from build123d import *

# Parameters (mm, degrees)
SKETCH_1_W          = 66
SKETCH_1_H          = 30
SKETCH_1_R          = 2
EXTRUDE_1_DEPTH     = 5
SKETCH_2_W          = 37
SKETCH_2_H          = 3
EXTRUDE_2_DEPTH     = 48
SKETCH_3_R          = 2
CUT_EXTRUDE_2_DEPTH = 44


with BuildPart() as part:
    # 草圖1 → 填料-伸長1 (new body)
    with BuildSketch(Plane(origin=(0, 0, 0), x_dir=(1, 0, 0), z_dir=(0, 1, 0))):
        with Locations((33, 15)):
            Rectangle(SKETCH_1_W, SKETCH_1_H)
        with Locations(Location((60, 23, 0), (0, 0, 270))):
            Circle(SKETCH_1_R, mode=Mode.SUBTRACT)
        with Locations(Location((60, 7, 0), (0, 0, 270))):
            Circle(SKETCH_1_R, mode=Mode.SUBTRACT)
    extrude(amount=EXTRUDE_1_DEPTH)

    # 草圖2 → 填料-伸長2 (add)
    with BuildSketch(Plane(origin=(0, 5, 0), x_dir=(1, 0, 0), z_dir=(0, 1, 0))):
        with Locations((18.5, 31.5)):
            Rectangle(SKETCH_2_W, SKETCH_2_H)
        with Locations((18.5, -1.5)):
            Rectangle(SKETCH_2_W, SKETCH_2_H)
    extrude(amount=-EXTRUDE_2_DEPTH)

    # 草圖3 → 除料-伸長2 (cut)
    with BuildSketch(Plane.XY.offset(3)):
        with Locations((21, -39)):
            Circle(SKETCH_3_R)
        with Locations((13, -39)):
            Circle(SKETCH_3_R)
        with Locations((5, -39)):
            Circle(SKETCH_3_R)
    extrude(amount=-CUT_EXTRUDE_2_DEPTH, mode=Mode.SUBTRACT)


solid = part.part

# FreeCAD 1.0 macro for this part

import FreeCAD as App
import Part
import Sketcher
from FreeCAD import Vector
Q = App.Units.Quantity

doc = App.newDocument("Part")
body = doc.addObject("PartDesign::Body", "Body")

# Sketch on XZ plane
sketch1 = body.newObject("Sketcher::SketchObject", "Sketch")
sketch1.AttachmentSupport = (doc.getObject("XZ_Plane"), [""])
sketch1.MapMode = "FlatFace"
sketch1.addGeometry(Part.LineSegment(Vector(0, -30, 0), Vector(0, 0, 0)), False)
sketch1.addGeometry(Part.LineSegment(Vector(0, 0, 0), Vector(66, 0, 0)), False)
sketch1.addGeometry(Part.LineSegment(Vector(66, 0, 0), Vector(66, -30, 0)), False)
sketch1.addGeometry(Part.LineSegment(Vector(66, -30, 0), Vector(0, -30, 0)), False)
sketch1.addGeometry(Part.Circle(Vector(60, -7, 0), Vector(0, 0, 1), 2), False)
sketch1.addGeometry(Part.Circle(Vector(60, -23, 0), Vector(0, 0, 1), 2), False)
sketch1.addConstraint(Sketcher.Constraint("Coincident", 0, 2, 1, 1))
sketch1.addConstraint(Sketcher.Constraint("Coincident", 1, 2, 2, 1))
sketch1.addConstraint(Sketcher.Constraint("Coincident", 2, 2, 3, 1))
sketch1.addConstraint(Sketcher.Constraint("Coincident", 3, 2, 0, 1))
sketch1.addConstraint(Sketcher.Constraint("Vertical", 0))
sketch1.addConstraint(Sketcher.Constraint("Horizontal", 1))
sketch1.addConstraint(Sketcher.Constraint("Vertical", 2))
sketch1.addConstraint(Sketcher.Constraint("Horizontal", 3))
sketch1.addConstraint(Sketcher.Constraint("Coincident", 0, 2, -1, 1))
sketch1.addConstraint(Sketcher.Constraint("Equal", 4, 5))
sketch1.addConstraint(Sketcher.Constraint("Vertical", 4, 3, 5, 3))
sketch1.addConstraint(Sketcher.Constraint("Diameter", 4, Q("4 mm")))
sketch1.addConstraint(Sketcher.Constraint("DistanceX", 1, 1, 1, 2, Q("66 mm")))
sketch1.addConstraint(Sketcher.Constraint("DistanceY", 0, 1, 0, 2, Q("30 mm")))
sketch1.addConstraint(Sketcher.Constraint("DistanceX", -1, 1, 4, 3, Q("60 mm")))
sketch1.addConstraint(Sketcher.Constraint("DistanceY", 4, 3, -1, 1, Q("7 mm")))
sketch1.addConstraint(Sketcher.Constraint("DistanceY", 5, 3, -1, 1, Q("23 mm")))
pad1 = body.newObject("PartDesign::Pad", "Pad")
pad1.Profile = sketch1
pad1.Length = 5
pad1.Reversed = True

# Sketch on XZ plane
sketch2 = body.newObject("Sketcher::SketchObject", "Sketch001")
sketch2.AttachmentSupport = (doc.getObject("XZ_Plane"), [""])
sketch2.MapMode = "FlatFace"
sketch2.AttachmentOffset = App.Placement(Vector(0, 0, -5), App.Rotation())
sketch2.addGeometry(Part.LineSegment(Vector(0, -33, 0), Vector(0, -30, 0)), False)
sketch2.addGeometry(Part.LineSegment(Vector(0, -30, 0), Vector(37, -30, 0)), False)
sketch2.addGeometry(Part.LineSegment(Vector(37, -30, 0), Vector(37, -33, 0)), False)
sketch2.addGeometry(Part.LineSegment(Vector(37, -33, 0), Vector(0, -33, 0)), False)
sketch2.addGeometry(Part.LineSegment(Vector(0, 0, 0), Vector(0, 3, 0)), False)
sketch2.addGeometry(Part.LineSegment(Vector(0, 3, 0), Vector(37, 3, 0)), False)
sketch2.addGeometry(Part.LineSegment(Vector(37, 3, 0), Vector(37, 0, 0)), False)
sketch2.addGeometry(Part.LineSegment(Vector(37, 0, 0), Vector(0, 0, 0)), False)
sketch2.addConstraint(Sketcher.Constraint("Coincident", 0, 2, 1, 1))
sketch2.addConstraint(Sketcher.Constraint("Coincident", 1, 2, 2, 1))
sketch2.addConstraint(Sketcher.Constraint("Coincident", 2, 2, 3, 1))
sketch2.addConstraint(Sketcher.Constraint("Coincident", 3, 2, 0, 1))
sketch2.addConstraint(Sketcher.Constraint("Coincident", 4, 2, 5, 1))
sketch2.addConstraint(Sketcher.Constraint("Coincident", 5, 2, 6, 1))
sketch2.addConstraint(Sketcher.Constraint("Coincident", 6, 2, 7, 1))
sketch2.addConstraint(Sketcher.Constraint("Coincident", 7, 2, 4, 1))
sketch2.addConstraint(Sketcher.Constraint("Vertical", 0))
sketch2.addConstraint(Sketcher.Constraint("Horizontal", 1))
sketch2.addConstraint(Sketcher.Constraint("Vertical", 2))
sketch2.addConstraint(Sketcher.Constraint("Horizontal", 3))
sketch2.addConstraint(Sketcher.Constraint("Vertical", 4))
sketch2.addConstraint(Sketcher.Constraint("Horizontal", 5))
sketch2.addConstraint(Sketcher.Constraint("Vertical", 6))
sketch2.addConstraint(Sketcher.Constraint("Horizontal", 7))
sketch2.addConstraint(Sketcher.Constraint("Coincident", 7, 2, -1, 1))
sketch2.addConstraint(Sketcher.Constraint("PointOnObject", 0, 2, -2))
sketch2.addConstraint(Sketcher.Constraint("Vertical", 2, 2, 5, 2))
sketch2.addConstraint(Sketcher.Constraint("Equal", 2, 4))
sketch2.addConstraint(Sketcher.Constraint("DistanceX", 1, 1, 1, 2, Q("37 mm")))
sketch2.addConstraint(Sketcher.Constraint("DistanceY", 0, 1, 0, 2, Q("3 mm")))
sketch2.addConstraint(Sketcher.Constraint("DistanceY", 0, 2, -1, 1, Q("30 mm")))
pad2 = body.newObject("PartDesign::Pad", "Pad001")
pad2.Profile = sketch2
pad2.Length = 48

# Sketch on XY plane
sketch3 = body.newObject("Sketcher::SketchObject", "Sketch002")
sketch3.AttachmentSupport = (doc.getObject("XY_Plane"), [""])
sketch3.MapMode = "FlatFace"
sketch3.AttachmentOffset = App.Placement(Vector(0, 0, 3), App.Rotation())
sketch3.addGeometry(Part.Circle(Vector(21, -39, 0), Vector(0, 0, 1), 2), False)
sketch3.addGeometry(Part.Circle(Vector(13, -39, 0), Vector(0, 0, 1), 2), False)
sketch3.addGeometry(Part.Circle(Vector(5, -39, 0), Vector(0, 0, 1), 2), False)
sketch3.addConstraint(Sketcher.Constraint("Equal", 0, 1))
sketch3.addConstraint(Sketcher.Constraint("Equal", 1, 2))
sketch3.addConstraint(Sketcher.Constraint("Horizontal", 0, 3, 1, 3))
sketch3.addConstraint(Sketcher.Constraint("Horizontal", 1, 3, 2, 3))
sketch3.addConstraint(Sketcher.Constraint("Diameter", 0, Q("4 mm")))
sketch3.addConstraint(Sketcher.Constraint("DistanceX", -1, 1, 0, 3, Q("21 mm")))
sketch3.addConstraint(Sketcher.Constraint("DistanceY", 0, 3, -1, 1, Q("39 mm")))
sketch3.addConstraint(Sketcher.Constraint("DistanceX", -1, 1, 1, 3, Q("13 mm")))
sketch3.addConstraint(Sketcher.Constraint("DistanceX", -1, 1, 2, 3, Q("5 mm")))
pocket1 = body.newObject("PartDesign::Pocket", "Pocket")
pocket1.Profile = sketch3
pocket1.Length = 44

doc.recompute()
